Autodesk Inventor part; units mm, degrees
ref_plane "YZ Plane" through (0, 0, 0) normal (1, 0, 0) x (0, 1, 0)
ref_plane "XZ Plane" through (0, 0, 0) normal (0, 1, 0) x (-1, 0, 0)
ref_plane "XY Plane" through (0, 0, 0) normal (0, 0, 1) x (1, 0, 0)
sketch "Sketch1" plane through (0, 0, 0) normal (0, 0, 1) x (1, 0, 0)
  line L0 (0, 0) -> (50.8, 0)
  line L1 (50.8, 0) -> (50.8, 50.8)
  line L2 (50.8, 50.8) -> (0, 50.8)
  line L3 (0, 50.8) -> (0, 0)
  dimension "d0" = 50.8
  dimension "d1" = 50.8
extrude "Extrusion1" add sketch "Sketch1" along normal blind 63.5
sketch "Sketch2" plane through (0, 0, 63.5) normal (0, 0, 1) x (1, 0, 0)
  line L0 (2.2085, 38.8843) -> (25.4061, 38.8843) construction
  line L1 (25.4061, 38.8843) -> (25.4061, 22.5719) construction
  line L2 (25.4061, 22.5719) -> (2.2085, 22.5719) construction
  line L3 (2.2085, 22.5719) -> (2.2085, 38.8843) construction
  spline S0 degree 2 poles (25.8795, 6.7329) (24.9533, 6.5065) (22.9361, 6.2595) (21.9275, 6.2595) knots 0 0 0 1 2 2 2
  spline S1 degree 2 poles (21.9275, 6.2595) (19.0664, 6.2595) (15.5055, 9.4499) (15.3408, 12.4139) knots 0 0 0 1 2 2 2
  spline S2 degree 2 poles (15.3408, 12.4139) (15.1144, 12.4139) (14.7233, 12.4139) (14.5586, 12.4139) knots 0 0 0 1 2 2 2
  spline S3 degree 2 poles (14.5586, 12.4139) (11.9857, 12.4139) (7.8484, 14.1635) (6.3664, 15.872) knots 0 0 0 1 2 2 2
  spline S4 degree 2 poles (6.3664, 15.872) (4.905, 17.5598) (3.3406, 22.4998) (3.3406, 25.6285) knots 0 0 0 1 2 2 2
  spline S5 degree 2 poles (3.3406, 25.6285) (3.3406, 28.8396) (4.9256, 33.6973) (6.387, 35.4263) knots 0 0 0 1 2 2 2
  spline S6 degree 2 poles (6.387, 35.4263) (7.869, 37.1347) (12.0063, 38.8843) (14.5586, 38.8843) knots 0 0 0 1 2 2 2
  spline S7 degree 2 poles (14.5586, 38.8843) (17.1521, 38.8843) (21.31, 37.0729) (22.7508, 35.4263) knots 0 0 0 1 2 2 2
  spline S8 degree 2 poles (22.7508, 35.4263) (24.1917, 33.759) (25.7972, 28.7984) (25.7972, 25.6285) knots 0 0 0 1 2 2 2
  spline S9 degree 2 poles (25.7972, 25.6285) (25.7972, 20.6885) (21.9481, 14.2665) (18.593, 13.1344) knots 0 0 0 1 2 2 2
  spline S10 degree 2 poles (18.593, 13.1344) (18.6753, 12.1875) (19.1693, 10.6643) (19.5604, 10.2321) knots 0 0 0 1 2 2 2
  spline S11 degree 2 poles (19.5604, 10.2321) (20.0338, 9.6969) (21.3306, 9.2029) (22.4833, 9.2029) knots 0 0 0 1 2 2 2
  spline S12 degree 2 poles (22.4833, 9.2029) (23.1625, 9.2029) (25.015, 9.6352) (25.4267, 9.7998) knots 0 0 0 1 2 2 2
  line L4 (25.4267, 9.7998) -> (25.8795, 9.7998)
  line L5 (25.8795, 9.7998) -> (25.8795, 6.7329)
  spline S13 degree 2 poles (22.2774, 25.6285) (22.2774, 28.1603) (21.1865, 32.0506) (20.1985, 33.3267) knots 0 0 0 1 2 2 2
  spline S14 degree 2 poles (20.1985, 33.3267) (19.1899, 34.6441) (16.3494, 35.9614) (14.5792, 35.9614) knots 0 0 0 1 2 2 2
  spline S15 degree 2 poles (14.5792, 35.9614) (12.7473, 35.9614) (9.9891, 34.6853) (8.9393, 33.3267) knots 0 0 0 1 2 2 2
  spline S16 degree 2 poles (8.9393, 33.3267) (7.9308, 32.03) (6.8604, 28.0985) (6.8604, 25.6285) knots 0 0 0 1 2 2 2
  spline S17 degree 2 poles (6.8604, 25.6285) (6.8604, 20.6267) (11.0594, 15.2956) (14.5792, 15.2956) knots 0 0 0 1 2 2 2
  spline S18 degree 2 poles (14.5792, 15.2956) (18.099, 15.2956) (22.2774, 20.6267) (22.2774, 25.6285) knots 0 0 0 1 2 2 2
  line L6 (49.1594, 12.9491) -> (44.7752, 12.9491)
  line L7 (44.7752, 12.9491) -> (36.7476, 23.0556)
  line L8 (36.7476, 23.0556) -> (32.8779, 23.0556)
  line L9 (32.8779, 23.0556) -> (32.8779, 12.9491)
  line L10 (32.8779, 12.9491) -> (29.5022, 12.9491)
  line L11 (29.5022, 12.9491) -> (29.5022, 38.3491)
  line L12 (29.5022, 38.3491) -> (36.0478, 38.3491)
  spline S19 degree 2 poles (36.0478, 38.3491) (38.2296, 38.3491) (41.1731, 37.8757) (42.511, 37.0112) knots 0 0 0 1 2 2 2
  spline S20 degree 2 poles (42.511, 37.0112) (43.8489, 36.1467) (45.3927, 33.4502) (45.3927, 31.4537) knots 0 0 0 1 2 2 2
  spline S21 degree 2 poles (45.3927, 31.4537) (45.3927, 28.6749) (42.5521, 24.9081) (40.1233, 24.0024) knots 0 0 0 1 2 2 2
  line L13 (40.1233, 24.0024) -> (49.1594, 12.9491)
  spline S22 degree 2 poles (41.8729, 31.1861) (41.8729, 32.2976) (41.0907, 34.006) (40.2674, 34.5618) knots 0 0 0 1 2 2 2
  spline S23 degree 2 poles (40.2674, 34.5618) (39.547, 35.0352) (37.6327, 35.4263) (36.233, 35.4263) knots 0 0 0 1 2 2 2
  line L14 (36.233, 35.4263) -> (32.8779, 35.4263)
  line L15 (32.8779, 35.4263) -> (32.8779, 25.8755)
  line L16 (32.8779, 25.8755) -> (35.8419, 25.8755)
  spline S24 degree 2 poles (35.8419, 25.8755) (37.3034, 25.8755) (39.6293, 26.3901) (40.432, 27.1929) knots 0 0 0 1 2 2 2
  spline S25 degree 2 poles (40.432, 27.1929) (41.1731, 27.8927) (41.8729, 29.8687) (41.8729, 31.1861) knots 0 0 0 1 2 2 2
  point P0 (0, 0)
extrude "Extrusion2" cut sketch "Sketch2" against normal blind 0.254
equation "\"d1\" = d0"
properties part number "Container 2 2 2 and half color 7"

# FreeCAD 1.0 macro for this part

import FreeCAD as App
import Part
import Sketcher
Q = App.Units.Quantity

doc = App.newDocument("Part")
body = doc.addObject("PartDesign::Body", "Body")

sketch1 = doc.addObject("Sketcher::SketchObject", "Sketch")
body.addObject(sketch1)
sketch1.AttachmentSupport = (doc.XY_Plane, [""])
sketch1.MapMode = "FlatFace"
sketch1.addGeometry([
    Part.LineSegment(App.Vector(0, 50.8, 0), App.Vector(0, 0, 0)),
    Part.LineSegment(App.Vector(0, 0, 0), App.Vector(50.8, 0, 0)),
    Part.LineSegment(App.Vector(50.8, 0, 0), App.Vector(50.8, 50.8, 0)),
    Part.LineSegment(App.Vector(50.8, 50.8, 0), App.Vector(0, 50.8, 0)),
], False)
sketch1.addConstraint([
    Sketcher.Constraint("Coincident", 0, 2, 1, 1),
    Sketcher.Constraint("Coincident", 1, 2, 2, 1),
    Sketcher.Constraint("Coincident", 2, 2, 3, 1),
    Sketcher.Constraint("Coincident", 3, 2, 0, 1),
    Sketcher.Constraint("Vertical", 0),
    Sketcher.Constraint("Horizontal", 1),
    Sketcher.Constraint("Vertical", 2),
    Sketcher.Constraint("Horizontal", 3),
    Sketcher.Constraint("Coincident", 0, 2, -1, 1),
    Sketcher.Constraint("Equal", 3, 0),
    Sketcher.Constraint("DistanceX", 1, 1, 1, 2, Q("2 in")),
])
pad1 = doc.addObject("PartDesign::Pad", "Pad")
body.addObject(pad1)
pad1.Profile = sketch1
pad1.Length = Q("2.5 in")

sketch2 = doc.addObject("Sketcher::SketchObject", "Sketch001")
body.addObject(sketch2)
sketch2.AttachmentSupport = (doc.XY_Plane, [""])
sketch2.MapMode = "FlatFace"
sketch2.AttachmentOffset = App.Placement(App.Vector(0, 0, 2.5 * 25.4), App.Rotation())
sketch2.addGeometry([
    Part.BSplineCurve([App.Vector(25.8795, 6.7329, 0), App.Vector(24.9533, 6.5065, 0), App.Vector(22.9361, 6.2595, 0), App.Vector(21.9275, 6.2595, 0)], [3, 1, 3], [0, 1, 2], False, 2, [1, 1, 1, 1], False),
    Part.LineSegment(App.Vector(25.8795, 6.7329, 0), App.Vector(25.8795, 9.7998, 0)),
    Part.LineSegment(App.Vector(25.8795, 9.7998, 0), App.Vector(25.4267, 9.7998, 0)),
    Part.BSplineCurve([App.Vector(22.4833, 9.2029, 0), App.Vector(23.1625, 9.2029, 0), App.Vector(25.015, 9.6352, 0), App.Vector(25.4267, 9.7998, 0)], [3, 1, 3], [0, 1, 2], False, 2, [1, 1, 1, 1], False),
    Part.BSplineCurve([App.Vector(19.5604, 10.2321, 0), App.Vector(20.0338, 9.6969, 0), App.Vector(21.3306, 9.2029, 0), App.Vector(22.4833, 9.2029, 0)], [3, 1, 3], [0, 1, 2], False, 2, [1, 1, 1, 1], False),
    Part.BSplineCurve([App.Vector(18.593, 13.1344, 0), App.Vector(18.6753, 12.1875, 0), App.Vector(19.1693, 10.6643, 0), App.Vector(19.5604, 10.2321, 0)], [3, 1, 3], [0, 1, 2], False, 2, [1, 1, 1, 1], False),
    Part.BSplineCurve([App.Vector(25.7972, 25.6285, 0), App.Vector(25.7972, 20.6885, 0), App.Vector(21.9481, 14.2665, 0), App.Vector(18.593, 13.1344, 0)], [3, 1, 3], [0, 1, 2], False, 2, [1, 1, 1, 1], False),
    Part.BSplineCurve([App.Vector(22.7508, 35.4263, 0), App.Vector(24.1917, 33.759, 0), App.Vector(25.7972, 28.7984, 0), App.Vector(25.7972, 25.6285, 0)], [3, 1, 3], [0, 1, 2], False, 2, [1, 1, 1, 1], False),
    Part.BSplineCurve([App.Vector(14.5586, 38.8843, 0), App.Vector(17.1521, 38.8843, 0), App.Vector(21.31, 37.0729, 0), App.Vector(22.7508, 35.4263, 0)], [3, 1, 3], [0, 1, 2], False, 2, [1, 1, 1, 1], False),
    Part.BSplineCurve([App.Vector(6.387, 35.4263, 0), App.Vector(7.869, 37.1347, 0), App.Vector(12.0063, 38.8843, 0), App.Vector(14.5586, 38.8843, 0)], [3, 1, 3], [0, 1, 2], False, 2, [1, 1, 1, 1], False),
    Part.BSplineCurve([App.Vector(3.3406, 25.6285, 0), App.Vector(3.3406, 28.8396, 0), App.Vector(4.9256, 33.6973, 0), App.Vector(6.387, 35.4263, 0)], [3, 1, 3], [0, 1, 2], False, 2, [1, 1, 1, 1], False),
    Part.BSplineCurve([App.Vector(6.3664, 15.872, 0), App.Vector(4.905, 17.5598, 0), App.Vector(3.3406, 22.4998, 0), App.Vector(3.3406, 25.6285, 0)], [3, 1, 3], [0, 1, 2], False, 2, [1, 1, 1, 1], False),
    Part.BSplineCurve([App.Vector(14.5586, 12.4139, 0), App.Vector(11.9857, 12.4139, 0), App.Vector(7.8484, 14.1635, 0), App.Vector(6.3664, 15.872, 0)], [3, 1, 3], [0, 1, 2], False, 2, [1, 1, 1, 1], False),
    Part.BSplineCurve([App.Vector(15.3408, 12.4139, 0), App.Vector(15.1144, 12.4139, 0), App.Vector(14.7233, 12.4139, 0), App.Vector(14.5586, 12.4139, 0)], [3, 1, 3], [0, 1, 2], False, 2, [1, 1, 1, 1], False),
    Part.BSplineCurve([App.Vector(21.9275, 6.2595, 0), App.Vector(19.0664, 6.2595, 0), App.Vector(15.5055, 9.4499, 0), App.Vector(15.3408, 12.4139, 0)], [3, 1, 3], [0, 1, 2], False, 2, [1, 1, 1, 1], False),
    Part.BSplineCurve([App.Vector(22.2774, 25.6285, 0), App.Vector(22.2774, 28.1603, 0), App.Vector(21.1865, 32.0506, 0), App.Vector(20.1985, 33.3267, 0)], [3, 1, 3], [0, 1, 2], False, 2, [1, 1, 1, 1], False),
    Part.BSplineCurve([App.Vector(14.5792, 15.2956, 0), App.Vector(18.099, 15.2956, 0), App.Vector(22.2774, 20.6267, 0), App.Vector(22.2774, 25.6285, 0)], [3, 1, 3], [0, 1, 2], False, 2, [1, 1, 1, 1], False),
    Part.BSplineCurve([App.Vector(6.8604, 25.6285, 0), App.Vector(6.8604, 20.6267, 0), App.Vector(11.0594, 15.2956, 0), App.Vector(14.5792, 15.2956, 0)], [3, 1, 3], [0, 1, 2], False, 2, [1, 1, 1, 1], False),
    Part.BSplineCurve([App.Vector(8.9393, 33.3267, 0), App.Vector(7.9308, 32.03, 0), App.Vector(6.8604, 28.0985, 0), App.Vector(6.8604, 25.6285, 0)], [3, 1, 3], [0, 1, 2], False, 2, [1, 1, 1, 1], False),
    Part.BSplineCurve([App.Vector(14.5792, 35.9614, 0), App.Vector(12.7473, 35.9614, 0), App.Vector(9.9891, 34.6853, 0), App.Vector(8.9393, 33.3267, 0)], [3, 1, 3], [0, 1, 2], False, 2, [1, 1, 1, 1], False),
    Part.BSplineCurve([App.Vector(20.1985, 33.3267, 0), App.Vector(19.1899, 34.6441, 0), App.Vector(16.3494, 35.9614, 0), App.Vector(14.5792, 35.9614, 0)], [3, 1, 3], [0, 1, 2], False, 2, [1, 1, 1, 1], False),
    Part.LineSegment(App.Vector(44.7752, 12.9491, 0), App.Vector(49.1594, 12.9491, 0)),
    Part.LineSegment(App.Vector(49.1594, 12.9491, 0), App.Vector(40.1233, 24.0024, 0)),
    Part.BSplineCurve([App.Vector(45.3927, 31.4537, 0), App.Vector(45.3927, 28.6749, 0), App.Vector(42.5521, 24.9081, 0), App.Vector(40.1233, 24.0024, 0)], [3, 1, 3], [0, 1, 2], False, 2, [1, 1, 1, 1], False),
    Part.BSplineCurve([App.Vector(42.511, 37.0112, 0), App.Vector(43.8489, 36.1467, 0), App.Vector(45.3927, 33.4502, 0), App.Vector(45.3927, 31.4537, 0)], [3, 1, 3], [0, 1, 2], False, 2, [1, 1, 1, 1], False),
    Part.BSplineCurve([App.Vector(36.0478, 38.3491, 0), App.Vector(38.2296, 38.3491, 0), App.Vector(41.1731, 37.8757, 0), App.Vector(42.511, 37.0112, 0)], [3, 1, 3], [0, 1, 2], False, 2, [1, 1, 1, 1], False),
    Part.LineSegment(App.Vector(36.0478, 38.3491, 0), App.Vector(29.5022, 38.3491, 0)),
    Part.LineSegment(App.Vector(29.5022, 38.3491, 0), App.Vector(29.5022, 12.9491, 0)),
    Part.LineSegment(App.Vector(29.5022, 12.9491, 0), App.Vector(32.8779, 12.9491, 0)),
    Part.LineSegment(App.Vector(32.8779, 12.9491, 0), App.Vector(32.8779, 23.0556, 0)),
    Part.LineSegment(App.Vector(32.8779, 23.0556, 0), App.Vector(36.7476, 23.0556, 0)),
    Part.LineSegment(App.Vector(36.7476, 23.0556, 0), App.Vector(44.7752, 12.9491, 0)),
    Part.BSplineCurve([App.Vector(41.8729, 31.1861, 0), App.Vector(41.8729, 32.2976, 0), App.Vector(41.0907, 34.006, 0), App.Vector(40.2674, 34.5618, 0)], [3, 1, 3], [0, 1, 2], False, 2, [1, 1, 1, 1], False),
    Part.BSplineCurve([App.Vector(40.432, 27.1929, 0), App.Vector(41.1731, 27.8927, 0), App.Vector(41.8729, 29.8687, 0), App.Vector(41.8729, 31.1861, 0)], [3, 1, 3], [0, 1, 2], False, 2, [1, 1, 1, 1], False),
    Part.BSplineCurve([App.Vector(35.8419, 25.8755, 0), App.Vector(37.3034, 25.8755, 0), App.Vector(39.6293, 26.3901, 0), App.Vector(40.432, 27.1929, 0)], [3, 1, 3], [0, 1, 2], False, 2, [1, 1, 1, 1], False),
    Part.LineSegment(App.Vector(35.8419, 25.8755, 0), App.Vector(32.8779, 25.8755, 0)),
    Part.LineSegment(App.Vector(32.8779, 25.8755, 0), App.Vector(32.8779, 35.4263, 0)),
    Part.LineSegment(App.Vector(32.8779, 35.4263, 0), App.Vector(36.233, 35.4263, 0)),
    Part.BSplineCurve([App.Vector(40.2674, 34.5618, 0), App.Vector(39.547, 35.0352, 0), App.Vector(37.6327, 35.4263, 0), App.Vector(36.233, 35.4263, 0)], [3, 1, 3], [0, 1, 2], False, 2, [1, 1, 1, 1], False),
], False)
sketch2.addConstraint([
    Sketcher.Constraint("Block", 0),
    Sketcher.Constraint("Block", 3),
    Sketcher.Constraint("Block", 4),
    Sketcher.Constraint("Block", 5),
    Sketcher.Constraint("Block", 6),
    Sketcher.Constraint("Block", 7),
    Sketcher.Constraint("Block", 8),
    Sketcher.Constraint("Block", 9),
    Sketcher.Constraint("Block", 10),
    Sketcher.Constraint("Block", 11),
    Sketcher.Constraint("Block", 12),
    Sketcher.Constraint("Block", 13),
    Sketcher.Constraint("Block", 14),
    Sketcher.Constraint("Block", 15),
    Sketcher.Constraint("Block", 16),
    Sketcher.Constraint("Block", 17),
    Sketcher.Constraint("Block", 18),
    Sketcher.Constraint("Block", 19),
    Sketcher.Constraint("Block", 20),
    Sketcher.Constraint("Block", 23),
    Sketcher.Constraint("Block", 24),
    Sketcher.Constraint("Block", 25),
    Sketcher.Constraint("Block", 32),
    Sketcher.Constraint("Block", 33),
    Sketcher.Constraint("Block", 34),
    Sketcher.Constraint("Block", 38),
    Sketcher.Constraint("Coincident", 0, 1, 1, 1),
    Sketcher.Constraint("Coincident", 1, 2, 2, 1),
    Sketcher.Constraint("Coincident", 2, 2, 3, 2),
    Sketcher.Constraint("Coincident", 21, 2, 22, 1),
    Sketcher.Constraint("Coincident", 22, 2, 23, 2),
    Sketcher.Constraint("Coincident", 25, 1, 26, 1),
    Sketcher.Constraint("Coincident", 26, 2, 27, 1),
    Sketcher.Constraint("Coincident", 27, 2, 28, 1),
    Sketcher.Constraint("Coincident", 28, 2, 29, 1),
    Sketcher.Constraint("Coincident", 29, 2, 30, 1),
    Sketcher.Constraint("Coincident", 30, 2, 31, 1),
    Sketcher.Constraint("Coincident", 31, 2, 21, 1),
    Sketcher.Constraint("Coincident", 34, 1, 35, 1),
    Sketcher.Constraint("Coincident", 35, 2, 36, 1),
    Sketcher.Constraint("Coincident", 36, 2, 37, 1),
    Sketcher.Constraint("Coincident", 37, 2, 38, 2),
    Sketcher.Constraint("Vertical", 1),
    Sketcher.Constraint("Horizontal", 2),
    Sketcher.Constraint("Horizontal", 21),
    Sketcher.Constraint("Horizontal", 26),
    Sketcher.Constraint("Vertical", 27),
    Sketcher.Constraint("Horizontal", 28),
    Sketcher.Constraint("Vertical", 29),
    Sketcher.Constraint("Horizontal", 30),
    Sketcher.Constraint("Horizontal", 35),
    Sketcher.Constraint("Vertical", 36),
    Sketcher.Constraint("Horizontal", 37),
    Sketcher.Constraint("Horizontal", 21, 2, 27, 2),
    Sketcher.Constraint("Vertical", 29, 2, 35, 2),
    Sketcher.Constraint("DistanceY", 27, 2, 27, 1, Q("1 in")),
    Sketcher.Constraint("Angle", 31, Q("-51.5399 deg")),
    Sketcher.Constraint("DistanceX", 21, 1, 21, 2, Q("0.1726 in")),
    Sketcher.Constraint("DistanceX", 26, 2, 26, 1, Q("0.2577 in")),
    Sketcher.Constraint("DistanceX", 28, 1, 28, 2, Q("0.1329 in")),
    Sketcher.Constraint("DistanceY", 29, 1, 29, 2, Q("0.3979 in")),
    Sketcher.Constraint("DistanceX", 28, 2, 21, 2, Q("0.641 in")),
])
pocket1 = doc.addObject("PartDesign::Pocket", "Pocket")
body.addObject(pocket1)
pocket1.Profile = sketch2
pocket1.Length = Q("0.01 in")

doc.recompute()
